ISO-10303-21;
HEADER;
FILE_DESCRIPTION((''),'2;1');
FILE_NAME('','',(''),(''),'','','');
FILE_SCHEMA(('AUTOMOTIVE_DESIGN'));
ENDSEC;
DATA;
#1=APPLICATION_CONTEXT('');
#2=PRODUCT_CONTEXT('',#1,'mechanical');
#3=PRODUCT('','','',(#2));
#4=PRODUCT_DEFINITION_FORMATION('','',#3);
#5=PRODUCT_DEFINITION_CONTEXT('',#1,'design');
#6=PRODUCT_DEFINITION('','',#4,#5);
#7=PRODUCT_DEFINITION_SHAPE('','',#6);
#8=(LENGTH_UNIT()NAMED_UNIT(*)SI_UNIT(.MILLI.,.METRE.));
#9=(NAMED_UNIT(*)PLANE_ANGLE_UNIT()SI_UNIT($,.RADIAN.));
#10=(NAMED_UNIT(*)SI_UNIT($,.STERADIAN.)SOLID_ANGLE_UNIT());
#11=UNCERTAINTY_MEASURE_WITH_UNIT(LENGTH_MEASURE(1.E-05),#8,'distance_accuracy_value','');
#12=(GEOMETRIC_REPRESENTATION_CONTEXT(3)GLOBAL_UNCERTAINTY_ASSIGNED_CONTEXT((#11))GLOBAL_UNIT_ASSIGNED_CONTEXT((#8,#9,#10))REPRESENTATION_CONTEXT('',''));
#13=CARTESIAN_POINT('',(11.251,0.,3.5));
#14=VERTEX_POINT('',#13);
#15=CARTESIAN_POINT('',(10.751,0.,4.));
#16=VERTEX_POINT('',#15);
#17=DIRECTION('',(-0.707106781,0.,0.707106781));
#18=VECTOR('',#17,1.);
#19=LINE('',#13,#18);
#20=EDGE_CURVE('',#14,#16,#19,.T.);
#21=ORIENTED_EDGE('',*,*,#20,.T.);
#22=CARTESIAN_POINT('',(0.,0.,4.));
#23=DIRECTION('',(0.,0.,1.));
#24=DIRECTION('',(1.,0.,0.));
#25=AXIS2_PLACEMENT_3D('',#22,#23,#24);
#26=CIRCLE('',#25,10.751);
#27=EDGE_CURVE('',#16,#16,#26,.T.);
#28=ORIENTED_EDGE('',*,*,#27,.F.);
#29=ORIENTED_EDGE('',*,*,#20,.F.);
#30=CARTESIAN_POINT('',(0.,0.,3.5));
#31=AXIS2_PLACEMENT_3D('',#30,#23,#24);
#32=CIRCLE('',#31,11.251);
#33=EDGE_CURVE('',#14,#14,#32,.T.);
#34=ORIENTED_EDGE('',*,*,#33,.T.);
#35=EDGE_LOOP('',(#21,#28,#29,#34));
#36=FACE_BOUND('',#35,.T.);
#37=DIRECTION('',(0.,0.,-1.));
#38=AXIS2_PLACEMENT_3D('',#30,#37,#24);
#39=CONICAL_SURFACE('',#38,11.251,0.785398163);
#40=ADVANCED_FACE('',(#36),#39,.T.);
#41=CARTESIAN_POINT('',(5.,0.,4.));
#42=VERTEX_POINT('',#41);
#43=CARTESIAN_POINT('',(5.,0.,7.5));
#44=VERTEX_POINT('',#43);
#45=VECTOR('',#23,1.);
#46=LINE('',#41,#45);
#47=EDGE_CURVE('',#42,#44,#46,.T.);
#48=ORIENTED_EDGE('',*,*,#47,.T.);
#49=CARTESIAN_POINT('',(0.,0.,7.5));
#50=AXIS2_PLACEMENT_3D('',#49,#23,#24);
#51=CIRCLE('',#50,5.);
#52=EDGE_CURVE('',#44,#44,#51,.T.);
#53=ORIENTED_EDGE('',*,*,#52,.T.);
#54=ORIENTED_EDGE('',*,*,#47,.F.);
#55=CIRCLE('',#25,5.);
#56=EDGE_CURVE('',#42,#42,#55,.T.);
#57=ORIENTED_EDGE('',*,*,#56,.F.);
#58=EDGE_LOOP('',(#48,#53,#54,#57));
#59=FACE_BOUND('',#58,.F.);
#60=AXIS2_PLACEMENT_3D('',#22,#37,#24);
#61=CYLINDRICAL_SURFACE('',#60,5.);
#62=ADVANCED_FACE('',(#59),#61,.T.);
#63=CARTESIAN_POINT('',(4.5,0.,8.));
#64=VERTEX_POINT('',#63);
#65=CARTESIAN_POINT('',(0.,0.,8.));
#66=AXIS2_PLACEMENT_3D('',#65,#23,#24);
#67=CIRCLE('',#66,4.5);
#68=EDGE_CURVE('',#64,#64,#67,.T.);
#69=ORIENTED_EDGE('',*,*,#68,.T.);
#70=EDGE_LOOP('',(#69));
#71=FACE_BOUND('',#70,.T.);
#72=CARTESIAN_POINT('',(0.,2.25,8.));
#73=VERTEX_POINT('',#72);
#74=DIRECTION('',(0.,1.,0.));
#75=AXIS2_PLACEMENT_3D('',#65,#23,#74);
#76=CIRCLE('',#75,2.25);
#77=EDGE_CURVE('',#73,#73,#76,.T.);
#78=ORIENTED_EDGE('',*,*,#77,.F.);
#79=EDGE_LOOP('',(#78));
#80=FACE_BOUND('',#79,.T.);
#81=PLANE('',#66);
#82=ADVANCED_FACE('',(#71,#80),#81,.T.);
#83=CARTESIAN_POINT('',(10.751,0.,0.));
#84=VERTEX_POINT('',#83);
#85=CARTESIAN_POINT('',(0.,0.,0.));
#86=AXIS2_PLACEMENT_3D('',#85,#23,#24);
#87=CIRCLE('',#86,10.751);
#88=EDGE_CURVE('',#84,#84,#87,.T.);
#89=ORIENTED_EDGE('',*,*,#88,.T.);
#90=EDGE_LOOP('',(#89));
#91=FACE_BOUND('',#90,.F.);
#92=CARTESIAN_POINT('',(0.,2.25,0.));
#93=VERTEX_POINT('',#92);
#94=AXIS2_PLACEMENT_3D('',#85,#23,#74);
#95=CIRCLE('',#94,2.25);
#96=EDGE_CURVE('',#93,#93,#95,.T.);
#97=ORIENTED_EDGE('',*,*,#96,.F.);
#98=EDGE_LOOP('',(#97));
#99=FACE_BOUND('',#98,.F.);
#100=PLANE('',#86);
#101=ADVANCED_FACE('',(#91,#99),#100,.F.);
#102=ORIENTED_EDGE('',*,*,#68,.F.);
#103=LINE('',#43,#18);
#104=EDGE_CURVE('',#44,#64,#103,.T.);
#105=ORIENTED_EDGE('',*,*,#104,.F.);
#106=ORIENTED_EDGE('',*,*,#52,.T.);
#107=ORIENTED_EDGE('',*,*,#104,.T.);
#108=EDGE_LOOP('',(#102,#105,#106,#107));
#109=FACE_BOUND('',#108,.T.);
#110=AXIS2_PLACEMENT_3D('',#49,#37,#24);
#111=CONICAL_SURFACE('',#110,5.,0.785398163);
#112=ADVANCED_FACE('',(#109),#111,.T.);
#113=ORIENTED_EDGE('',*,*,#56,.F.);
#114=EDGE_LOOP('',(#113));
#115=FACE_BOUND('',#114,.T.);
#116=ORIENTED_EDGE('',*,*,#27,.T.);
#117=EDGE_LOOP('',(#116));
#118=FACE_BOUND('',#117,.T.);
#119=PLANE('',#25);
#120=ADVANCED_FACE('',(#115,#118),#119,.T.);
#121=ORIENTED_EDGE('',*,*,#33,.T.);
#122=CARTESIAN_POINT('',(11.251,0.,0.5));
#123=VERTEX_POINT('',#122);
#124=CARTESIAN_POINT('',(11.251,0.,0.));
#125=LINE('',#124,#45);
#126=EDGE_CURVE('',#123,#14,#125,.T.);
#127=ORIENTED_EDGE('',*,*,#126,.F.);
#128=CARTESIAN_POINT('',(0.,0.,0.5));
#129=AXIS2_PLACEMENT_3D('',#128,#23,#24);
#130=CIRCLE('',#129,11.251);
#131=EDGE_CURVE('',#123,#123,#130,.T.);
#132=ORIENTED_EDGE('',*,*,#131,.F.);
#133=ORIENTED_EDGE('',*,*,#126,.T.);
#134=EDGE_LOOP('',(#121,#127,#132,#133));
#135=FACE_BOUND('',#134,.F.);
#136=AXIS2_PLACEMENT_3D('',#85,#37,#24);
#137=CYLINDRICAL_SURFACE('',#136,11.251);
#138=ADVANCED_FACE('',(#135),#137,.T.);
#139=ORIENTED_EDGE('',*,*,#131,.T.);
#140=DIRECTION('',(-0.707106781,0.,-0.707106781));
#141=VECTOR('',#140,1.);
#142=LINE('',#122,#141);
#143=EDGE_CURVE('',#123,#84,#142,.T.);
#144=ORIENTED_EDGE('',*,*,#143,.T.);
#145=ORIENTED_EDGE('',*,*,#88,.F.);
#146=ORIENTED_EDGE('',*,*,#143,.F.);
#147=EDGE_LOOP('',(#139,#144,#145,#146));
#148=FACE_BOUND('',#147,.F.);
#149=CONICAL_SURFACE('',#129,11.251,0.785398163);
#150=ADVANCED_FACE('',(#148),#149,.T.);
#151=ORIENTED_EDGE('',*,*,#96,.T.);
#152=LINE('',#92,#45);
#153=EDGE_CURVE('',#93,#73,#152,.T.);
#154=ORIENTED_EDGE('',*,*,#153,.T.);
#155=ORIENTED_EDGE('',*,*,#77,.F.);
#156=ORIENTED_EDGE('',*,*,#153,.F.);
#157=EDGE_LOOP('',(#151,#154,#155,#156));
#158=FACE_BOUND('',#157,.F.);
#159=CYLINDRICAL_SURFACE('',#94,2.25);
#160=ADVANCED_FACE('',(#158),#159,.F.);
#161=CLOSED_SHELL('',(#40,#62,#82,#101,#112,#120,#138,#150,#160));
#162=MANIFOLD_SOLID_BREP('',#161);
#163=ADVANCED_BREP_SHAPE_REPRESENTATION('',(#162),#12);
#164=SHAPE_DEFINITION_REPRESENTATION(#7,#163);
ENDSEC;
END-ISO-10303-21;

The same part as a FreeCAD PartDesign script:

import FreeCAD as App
import Part
import Sketcher
Q = App.Units.Quantity


def edges_at(feature, points):
    """Names of the edges that pass closest to the given points."""
    edges = feature.Shape.Edges
    near = lambda p: min(range(len(edges)), key=lambda i: edges[i].distToShape(Part.Vertex(*p))[0])
    return sorted({f"Edge{near(p) + 1}" for p in points})

doc = App.newDocument("Part")
body = doc.addObject("PartDesign::Body", "Body")

# Sketch on XY plane
sketch1 = body.newObject("Sketcher::SketchObject", "Sketch")
sketch1.AttachmentSupport = (doc.getObject("XY_Plane"), [""])
sketch1.MapMode = "FlatFace"
sketch1.addGeometry(Part.Circle(App.Vector(0, 0, 0), App.Vector(0, 0, 1), 11), False)
sketch1.addConstraint(Sketcher.Constraint("Coincident", 0, 3, -1, 1))
sketch1.addConstraint(Sketcher.Constraint("Diameter", 0, Q("22.502 mm")))
pad1 = body.newObject("PartDesign::Pad", "Pad")
pad1.Profile = sketch1
pad1.Length = 4

# Sketch on XY plane
sketch2 = body.newObject("Sketcher::SketchObject", "Sketch001")
sketch2.AttachmentSupport = (doc.getObject("XY_Plane"), [""])
sketch2.MapMode = "FlatFace"
sketch2.AttachmentOffset = App.Placement(App.Vector(0, 0, 4), App.Rotation())
sketch2.addGeometry(Part.Circle(App.Vector(0, 0, 0), App.Vector(0, 0, 1), 5), False)
sketch2.addConstraint(Sketcher.Constraint("Coincident", 0, 3, -1, 1))
sketch2.addConstraint(Sketcher.Constraint("Diameter", 0, Q("10 mm")))
pad2 = body.newObject("PartDesign::Pad", "Pad001")
pad2.Profile = sketch2
pad2.Length = 4

# Sketch on XY plane
sketch3 = body.newObject("Sketcher::SketchObject", "Sketch002")
sketch3.AttachmentSupport = (doc.getObject("XY_Plane"), [""])
sketch3.MapMode = "FlatFace"
sketch3.addGeometry(Part.Circle(App.Vector(0, 0, 0), App.Vector(0, 0, 1), 2.2), False)
sketch3.addConstraint(Sketcher.Constraint("Coincident", 0, 3, -1, 1))
sketch3.addConstraint(Sketcher.Constraint("Diameter", 0, Q("4.5 mm")))
doc.recompute()
hole = body.newObject("PartDesign::Hole", "Hole")
hole.Profile = sketch3
hole.ThreadType = "None"
hole.Diameter = 4.5
hole.DepthType = "ThroughAll"
hole.Reversed = True
doc.recompute()

chamfer = body.newObject("PartDesign::Chamfer", "Chamfer")
chamfer.Base = (hole, edges_at(hole, [(-11.251, 0, 0), (-11.251, 0, 4), (-5, 0, 8)]))
chamfer.Size = 0.5

doc.recompute()
